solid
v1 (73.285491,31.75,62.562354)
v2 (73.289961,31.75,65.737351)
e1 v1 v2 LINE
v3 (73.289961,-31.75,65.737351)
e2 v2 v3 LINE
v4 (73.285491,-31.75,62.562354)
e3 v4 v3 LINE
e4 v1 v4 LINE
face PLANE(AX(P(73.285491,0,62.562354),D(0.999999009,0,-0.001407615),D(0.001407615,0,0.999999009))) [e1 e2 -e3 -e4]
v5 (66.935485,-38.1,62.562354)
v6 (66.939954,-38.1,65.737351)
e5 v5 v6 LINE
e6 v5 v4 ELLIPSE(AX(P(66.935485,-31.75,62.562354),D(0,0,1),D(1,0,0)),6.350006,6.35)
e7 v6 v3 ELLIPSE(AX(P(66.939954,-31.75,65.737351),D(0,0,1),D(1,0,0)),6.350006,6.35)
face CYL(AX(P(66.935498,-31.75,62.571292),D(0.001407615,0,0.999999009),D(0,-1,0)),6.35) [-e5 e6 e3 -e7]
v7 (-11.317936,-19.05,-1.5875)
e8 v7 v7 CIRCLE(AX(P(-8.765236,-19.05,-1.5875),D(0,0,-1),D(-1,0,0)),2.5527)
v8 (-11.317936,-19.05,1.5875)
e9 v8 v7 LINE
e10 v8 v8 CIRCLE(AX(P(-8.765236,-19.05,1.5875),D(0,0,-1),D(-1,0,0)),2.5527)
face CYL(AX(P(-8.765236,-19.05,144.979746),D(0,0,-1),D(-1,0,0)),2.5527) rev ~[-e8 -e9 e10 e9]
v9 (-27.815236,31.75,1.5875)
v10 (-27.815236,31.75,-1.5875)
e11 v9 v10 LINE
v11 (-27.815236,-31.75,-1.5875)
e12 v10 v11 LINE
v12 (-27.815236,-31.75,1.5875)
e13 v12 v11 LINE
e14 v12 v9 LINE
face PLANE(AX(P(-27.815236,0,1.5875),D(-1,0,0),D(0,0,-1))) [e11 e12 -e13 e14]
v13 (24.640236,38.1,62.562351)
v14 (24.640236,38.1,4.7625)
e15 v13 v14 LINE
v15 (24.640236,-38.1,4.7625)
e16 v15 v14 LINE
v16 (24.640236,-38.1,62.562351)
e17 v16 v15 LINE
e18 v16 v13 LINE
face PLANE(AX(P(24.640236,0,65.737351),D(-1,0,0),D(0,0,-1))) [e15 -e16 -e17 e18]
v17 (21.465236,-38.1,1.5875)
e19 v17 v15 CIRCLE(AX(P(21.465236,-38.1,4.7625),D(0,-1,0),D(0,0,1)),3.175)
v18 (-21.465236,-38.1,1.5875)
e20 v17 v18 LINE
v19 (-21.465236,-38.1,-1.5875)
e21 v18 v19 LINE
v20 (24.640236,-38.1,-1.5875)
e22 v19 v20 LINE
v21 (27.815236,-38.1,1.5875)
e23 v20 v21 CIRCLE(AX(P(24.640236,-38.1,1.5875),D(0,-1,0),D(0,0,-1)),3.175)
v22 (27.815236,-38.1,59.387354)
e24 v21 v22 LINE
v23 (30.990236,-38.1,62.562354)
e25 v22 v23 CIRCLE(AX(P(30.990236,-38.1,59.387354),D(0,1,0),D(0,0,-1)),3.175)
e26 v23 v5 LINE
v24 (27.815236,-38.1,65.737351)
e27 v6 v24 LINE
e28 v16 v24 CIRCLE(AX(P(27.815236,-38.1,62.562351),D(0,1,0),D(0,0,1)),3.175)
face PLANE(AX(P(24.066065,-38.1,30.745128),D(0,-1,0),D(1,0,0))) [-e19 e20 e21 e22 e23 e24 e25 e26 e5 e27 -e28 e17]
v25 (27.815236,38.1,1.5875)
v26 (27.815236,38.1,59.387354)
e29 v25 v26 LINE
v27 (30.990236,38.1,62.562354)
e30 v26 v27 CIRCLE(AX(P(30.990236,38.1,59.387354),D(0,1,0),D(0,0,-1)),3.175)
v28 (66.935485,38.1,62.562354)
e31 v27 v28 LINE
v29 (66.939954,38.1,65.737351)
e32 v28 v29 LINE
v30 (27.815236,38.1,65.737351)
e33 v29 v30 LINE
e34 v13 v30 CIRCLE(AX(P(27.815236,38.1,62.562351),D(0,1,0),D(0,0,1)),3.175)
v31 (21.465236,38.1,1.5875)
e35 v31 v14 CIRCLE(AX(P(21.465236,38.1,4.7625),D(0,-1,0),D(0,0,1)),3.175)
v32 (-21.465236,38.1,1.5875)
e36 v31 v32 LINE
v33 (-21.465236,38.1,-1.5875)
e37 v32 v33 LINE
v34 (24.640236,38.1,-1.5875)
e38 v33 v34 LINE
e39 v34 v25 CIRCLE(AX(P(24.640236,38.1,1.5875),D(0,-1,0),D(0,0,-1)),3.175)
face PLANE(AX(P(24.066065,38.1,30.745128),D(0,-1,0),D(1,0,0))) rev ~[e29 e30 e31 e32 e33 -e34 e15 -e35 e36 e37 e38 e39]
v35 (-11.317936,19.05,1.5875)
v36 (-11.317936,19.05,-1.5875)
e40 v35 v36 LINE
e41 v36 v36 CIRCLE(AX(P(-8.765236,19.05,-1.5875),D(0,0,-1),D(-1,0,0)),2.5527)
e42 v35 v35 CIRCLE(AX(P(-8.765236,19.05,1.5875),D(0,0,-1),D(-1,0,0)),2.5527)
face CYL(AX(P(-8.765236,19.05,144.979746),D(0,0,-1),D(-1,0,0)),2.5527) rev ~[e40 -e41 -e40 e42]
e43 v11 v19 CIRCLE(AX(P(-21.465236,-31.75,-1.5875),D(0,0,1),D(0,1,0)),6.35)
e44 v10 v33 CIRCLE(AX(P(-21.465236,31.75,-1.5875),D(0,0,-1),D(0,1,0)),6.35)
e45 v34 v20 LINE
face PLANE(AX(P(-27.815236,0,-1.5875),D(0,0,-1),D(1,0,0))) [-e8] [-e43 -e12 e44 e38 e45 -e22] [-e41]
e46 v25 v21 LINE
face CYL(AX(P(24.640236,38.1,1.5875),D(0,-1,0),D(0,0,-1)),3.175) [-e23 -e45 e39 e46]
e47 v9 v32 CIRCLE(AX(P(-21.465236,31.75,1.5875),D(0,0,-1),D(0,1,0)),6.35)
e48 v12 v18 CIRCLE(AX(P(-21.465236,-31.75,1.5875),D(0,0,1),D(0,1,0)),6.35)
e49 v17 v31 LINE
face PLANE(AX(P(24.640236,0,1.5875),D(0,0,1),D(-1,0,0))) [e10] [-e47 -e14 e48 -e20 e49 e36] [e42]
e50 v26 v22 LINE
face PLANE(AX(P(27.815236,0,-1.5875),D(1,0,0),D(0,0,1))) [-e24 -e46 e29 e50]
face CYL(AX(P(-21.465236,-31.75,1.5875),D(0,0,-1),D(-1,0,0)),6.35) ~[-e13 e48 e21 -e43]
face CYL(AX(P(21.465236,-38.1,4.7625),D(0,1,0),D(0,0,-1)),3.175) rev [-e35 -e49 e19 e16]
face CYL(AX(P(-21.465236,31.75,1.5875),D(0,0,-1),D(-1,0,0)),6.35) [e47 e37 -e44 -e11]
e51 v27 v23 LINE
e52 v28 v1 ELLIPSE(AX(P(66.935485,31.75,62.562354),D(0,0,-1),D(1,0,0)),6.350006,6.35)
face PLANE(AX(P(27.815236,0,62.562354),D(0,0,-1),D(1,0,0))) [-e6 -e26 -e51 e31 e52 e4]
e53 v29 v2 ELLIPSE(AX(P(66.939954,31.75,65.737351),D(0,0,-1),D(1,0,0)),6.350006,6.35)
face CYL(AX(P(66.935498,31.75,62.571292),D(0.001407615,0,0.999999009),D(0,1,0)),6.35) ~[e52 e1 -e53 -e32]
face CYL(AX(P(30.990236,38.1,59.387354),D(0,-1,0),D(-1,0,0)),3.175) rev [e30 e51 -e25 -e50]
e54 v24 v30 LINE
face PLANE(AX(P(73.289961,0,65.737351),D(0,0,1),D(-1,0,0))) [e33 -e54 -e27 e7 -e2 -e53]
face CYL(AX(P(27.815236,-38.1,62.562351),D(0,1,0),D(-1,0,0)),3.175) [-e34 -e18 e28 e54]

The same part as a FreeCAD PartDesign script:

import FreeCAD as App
import Part
import Sketcher

V = App.Vector
Q = App.Units.Quantity


def edges_at(feature, points):
    """Names of the edges that pass closest to the given points."""
    edges = feature.Shape.Edges
    near = lambda p: min(range(len(edges)), key=lambda i: edges[i].distToShape(Part.Vertex(*p))[0])
    return sorted({f"Edge{near(p) + 1}" for p in points})


def add_polygon(sketch, points):
    """Adds a closed chain of lines whose ends are joined by coincident constraints."""
    first, n = sketch.GeometryCount, len(points)
    for a, b in zip(points, points[1:] + points[:1]):
        sketch.addGeometry(Part.LineSegment(App.Vector(*a, 0), App.Vector(*b, 0)), False)
    for i in range(n):
        sketch.addConstraint(Sketcher.Constraint("Coincident", first + i, 2, first + (i + 1) % n, 1))

doc = App.newDocument("Part")
body = doc.addObject("PartDesign::Body", "Body")

sketch1 = doc.addObject("Sketcher::SketchObject", "Sketch")
body.addObject(sketch1)
sketch1.AttachmentSupport = (doc.XZ_Plane, [""])
sketch1.MapMode = "FlatFace"
add_polygon(sketch1, [(-27.8, 1.6), (-27.8, -1.6), (27.8, -1.6), (27.8, 62.6), (73.3, 62.6), (73.3, 65.7), (24.6, 65.7), (24.6, 1.6)])
sketch1.addConstraint(Sketcher.Constraint("Vertical", 0))
sketch1.addConstraint(Sketcher.Constraint("Horizontal", 1))
sketch1.addConstraint(Sketcher.Constraint("Vertical", 2))
sketch1.addConstraint(Sketcher.Constraint("Horizontal", 3))
sketch1.addConstraint(Sketcher.Constraint("Horizontal", 5))
sketch1.addConstraint(Sketcher.Constraint("Vertical", 6))
sketch1.addConstraint(Sketcher.Constraint("Horizontal", 7))
sketch1.addConstraint(Sketcher.Constraint("Symmetric", 1, 2, 7, 2, -1, 1))
sketch1.addConstraint(Sketcher.Constraint("DistanceY", 0, 2, 0, 1, Q("0.125 in")))
sketch1.addConstraint(Sketcher.Constraint("Distance", 4, Q("0.125 in")))
sketch1.addConstraint(Sketcher.Constraint("DistanceX", 5, 2, 2, 2, Q("0.125 in")))
sketch1.addConstraint(Sketcher.Constraint("DistanceX", 1, 1, 1, 2, 55.630472))
sketch1.addConstraint(Sketcher.Constraint("DistanceY", 6, 2, 6, 1, 64.149851))
sketch1.addConstraint(Sketcher.Constraint("DistanceX", 3, 1, 3, 2, 45.470256))
sketch1.addConstraint(Sketcher.Constraint("DistanceX", 5, 2, 5, 1, 48.649725))
pad1 = doc.addObject("PartDesign::Pad", "Pad")
body.addObject(pad1)
pad1.Profile = sketch1
pad1.Length = Q("3 in")
pad1.Midplane = True
doc.recompute()

fillet = doc.addObject("PartDesign::Fillet", "Fillet")
body.addObject(fillet)
fillet.Base = (pad1, edges_at(pad1, [(-27.815, -38.1, 0)]))
fillet.Radius = Q("0.25 in")
doc.recompute()

fillet2 = doc.addObject("PartDesign::Fillet", "Fillet001")
body.addObject(fillet2)
fillet2.Base = (fillet, edges_at(fillet, [(73.288, 38.1, 64.15), (73.288, -38.1, 64.15), (-27.815, 38.1, 0)]))
fillet2.Radius = Q("0.25 in")

sketch2 = doc.addObject("Sketcher::SketchObject", "Sketch001")
body.addObject(sketch2)
sketch2.AttachmentSupport = (doc.XY_Plane, [""])
sketch2.MapMode = "FlatFace"
sketch2.AttachmentOffset = App.Placement(V(0, 0, 0.0625 * 25.4), App.Rotation())
sketch2.addGeometry(Part.Circle(V(-8.8, 19.1, 0), V(0, 0, 1), 2.6), False)
sketch2.addGeometry(Part.Circle(V(-8.8, -19.1, 0), V(0, 0, 1), 2.6), False)
sketch2.addConstraint(Sketcher.Constraint("Equal", 0, 1))
sketch2.addConstraint(Sketcher.Constraint("Symmetric", 0, 3, 1, 3, -1))
sketch2.addConstraint(Sketcher.Constraint("Diameter", 0, Q("0.201 in")))
sketch2.addConstraint(Sketcher.Constraint("DistanceY", 1, 3, 0, 3, Q("1.5 in")))
sketch2.addConstraint(Sketcher.Constraint("DistanceX", 0, 3, -1, 1, 8.765236))
doc.recompute()
hole = doc.addObject("PartDesign::Hole", "Hole")
body.addObject(hole)
hole.Profile = sketch2
hole.ThreadType = "None"
hole.Diameter = Q("0.201 in")
hole.DepthType = "ThroughAll"
doc.recompute()

fillet3 = doc.addObject("PartDesign::Fillet", "Fillet002")
body.addObject(fillet3)
fillet3.Base = (hole, edges_at(hole, [(24.64, 0, 65.737), (27.815, 0, -1.587)]))
fillet3.Radius = Q("0.125 in")
doc.recompute()

fillet4 = doc.addObject("PartDesign::Fillet", "Fillet003")
body.addObject(fillet4)
fillet4.Base = (fillet3, edges_at(fillet3, [(27.815, 0, 62.562), (24.64, 0, 1.587)]))
fillet4.Radius = Q("0.125 in")

doc.recompute()
